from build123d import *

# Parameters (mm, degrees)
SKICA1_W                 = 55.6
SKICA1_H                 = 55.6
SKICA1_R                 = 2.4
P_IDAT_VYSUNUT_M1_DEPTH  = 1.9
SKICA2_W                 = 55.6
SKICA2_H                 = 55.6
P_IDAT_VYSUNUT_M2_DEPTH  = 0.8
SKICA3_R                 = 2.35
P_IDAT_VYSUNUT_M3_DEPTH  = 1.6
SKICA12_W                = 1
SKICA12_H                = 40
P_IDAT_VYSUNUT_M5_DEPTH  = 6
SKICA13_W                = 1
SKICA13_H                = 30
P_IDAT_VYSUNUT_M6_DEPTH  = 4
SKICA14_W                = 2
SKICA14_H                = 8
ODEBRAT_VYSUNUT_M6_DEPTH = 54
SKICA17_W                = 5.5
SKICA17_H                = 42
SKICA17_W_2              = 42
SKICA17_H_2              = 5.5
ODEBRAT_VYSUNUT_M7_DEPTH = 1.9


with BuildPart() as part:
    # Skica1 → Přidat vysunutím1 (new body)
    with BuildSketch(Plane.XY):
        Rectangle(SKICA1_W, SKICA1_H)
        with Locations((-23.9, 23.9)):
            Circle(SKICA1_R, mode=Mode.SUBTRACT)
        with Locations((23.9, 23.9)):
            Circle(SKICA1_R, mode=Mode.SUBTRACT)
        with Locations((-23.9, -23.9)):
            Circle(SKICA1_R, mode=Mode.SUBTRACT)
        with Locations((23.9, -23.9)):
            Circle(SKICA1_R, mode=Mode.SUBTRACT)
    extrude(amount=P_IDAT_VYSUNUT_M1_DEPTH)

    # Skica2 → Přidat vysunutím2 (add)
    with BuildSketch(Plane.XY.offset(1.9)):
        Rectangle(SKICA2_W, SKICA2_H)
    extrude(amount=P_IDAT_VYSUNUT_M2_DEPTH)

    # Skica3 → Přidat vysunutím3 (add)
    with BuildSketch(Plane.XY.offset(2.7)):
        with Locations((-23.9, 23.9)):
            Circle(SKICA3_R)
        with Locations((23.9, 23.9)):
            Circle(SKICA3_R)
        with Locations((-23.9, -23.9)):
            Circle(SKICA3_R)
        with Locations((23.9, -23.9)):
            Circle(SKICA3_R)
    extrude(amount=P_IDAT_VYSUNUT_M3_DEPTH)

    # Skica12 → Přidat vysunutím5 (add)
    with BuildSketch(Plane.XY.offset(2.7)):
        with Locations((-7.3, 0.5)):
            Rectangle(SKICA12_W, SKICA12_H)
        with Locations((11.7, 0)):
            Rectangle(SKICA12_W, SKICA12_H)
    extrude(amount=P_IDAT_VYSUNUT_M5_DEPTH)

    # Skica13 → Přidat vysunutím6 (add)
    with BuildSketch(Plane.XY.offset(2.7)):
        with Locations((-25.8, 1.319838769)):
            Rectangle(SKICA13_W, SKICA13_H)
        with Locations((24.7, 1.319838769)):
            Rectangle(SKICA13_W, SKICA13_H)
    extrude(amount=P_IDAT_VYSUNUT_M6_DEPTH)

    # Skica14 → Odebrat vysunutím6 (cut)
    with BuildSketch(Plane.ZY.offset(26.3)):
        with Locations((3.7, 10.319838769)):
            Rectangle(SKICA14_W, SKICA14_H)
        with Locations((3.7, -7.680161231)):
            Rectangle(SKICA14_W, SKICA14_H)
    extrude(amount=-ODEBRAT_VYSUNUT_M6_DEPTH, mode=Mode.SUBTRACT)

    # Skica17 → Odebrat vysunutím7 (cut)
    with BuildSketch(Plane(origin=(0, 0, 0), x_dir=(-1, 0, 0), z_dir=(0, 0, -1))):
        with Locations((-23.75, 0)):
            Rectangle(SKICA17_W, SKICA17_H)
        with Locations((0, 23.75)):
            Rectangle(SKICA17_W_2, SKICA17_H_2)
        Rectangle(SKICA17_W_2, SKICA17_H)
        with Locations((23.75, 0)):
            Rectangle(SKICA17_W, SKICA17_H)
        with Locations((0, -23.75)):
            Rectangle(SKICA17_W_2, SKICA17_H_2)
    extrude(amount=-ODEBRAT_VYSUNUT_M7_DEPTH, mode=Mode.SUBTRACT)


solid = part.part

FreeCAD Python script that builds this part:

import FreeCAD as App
import Part
import Sketcher

V = App.Vector
Q = App.Units.Quantity

doc = App.newDocument("Part")
body = doc.addObject("PartDesign::Body", "Body")

sketch1 = doc.addObject("Sketcher::SketchObject", "Sketch")
body.addObject(sketch1)
sketch1.AttachmentSupport = (doc.XY_Plane, [""])
sketch1.MapMode = "FlatFace"
sketch1.addGeometry(Part.LineSegment(V(-27.8, 27.8, 0), V(-27.8, -27.8, 0)), False)
sketch1.addGeometry(Part.LineSegment(V(-27.8, -27.8, 0), V(27.8, -27.8, 0)), False)
sketch1.addGeometry(Part.LineSegment(V(27.8, -27.8, 0), V(27.8, 27.8, 0)), False)
sketch1.addGeometry(Part.LineSegment(V(27.8, 27.8, 0), V(-27.8, 27.8, 0)), False)
sketch1.addGeometry(Part.Circle(V(-23.9, -23.9, 0), V(0, 0, 1), 2.4), False)
sketch1.addGeometry(Part.Circle(V(23.9, -23.9, 0), V(0, 0, 1), 2.4), False)
sketch1.addGeometry(Part.Circle(V(-23.9, 23.9, 0), V(0, 0, 1), 2.4), False)
sketch1.addGeometry(Part.Circle(V(23.9, 23.9, 0), V(0, 0, 1), 2.4), False)
sketch1.addConstraint(Sketcher.Constraint("Coincident", 0, 2, 1, 1))
sketch1.addConstraint(Sketcher.Constraint("Coincident", 1, 2, 2, 1))
sketch1.addConstraint(Sketcher.Constraint("Coincident", 2, 2, 3, 1))
sketch1.addConstraint(Sketcher.Constraint("Coincident", 3, 2, 0, 1))
sketch1.addConstraint(Sketcher.Constraint("Vertical", 0))
sketch1.addConstraint(Sketcher.Constraint("Horizontal", 1))
sketch1.addConstraint(Sketcher.Constraint("Vertical", 2))
sketch1.addConstraint(Sketcher.Constraint("Horizontal", 3))
sketch1.addConstraint(Sketcher.Constraint("Equal", 4, 5))
sketch1.addConstraint(Sketcher.Constraint("Equal", 5, 6))
sketch1.addConstraint(Sketcher.Constraint("Equal", 6, 7))
sketch1.addConstraint(Sketcher.Constraint("Symmetric", 5, 3, 6, 3, -1, 1))
sketch1.addConstraint(Sketcher.Constraint("Symmetric", 4, 3, 7, 3, -1, 1))
sketch1.addConstraint(Sketcher.Constraint("Symmetric", 0, 2, 2, 2, -1, 1))
sketch1.addConstraint(Sketcher.Constraint("Symmetric", 4, 3, 5, 3, -2))
sketch1.addConstraint(Sketcher.Constraint("Equal", 3, 0))
sketch1.addConstraint(Sketcher.Constraint("Diameter", 4, Q("4.8 mm")))
sketch1.addConstraint(Sketcher.Constraint("DistanceX", 1, 1, 1, 2, Q("55.6 mm")))
sketch1.addConstraint(Sketcher.Constraint("DistanceX", 4, 3, -1, 1, Q("23.9 mm")))
sketch1.addConstraint(Sketcher.Constraint("DistanceY", 4, 3, -1, 1, Q("23.9 mm")))
pad1 = doc.addObject("PartDesign::Pad", "Pad")
body.addObject(pad1)
pad1.Profile = sketch1
pad1.Length = 1.9

sketch2 = doc.addObject("Sketcher::SketchObject", "Sketch001")
body.addObject(sketch2)
sketch2.AttachmentSupport = (doc.XY_Plane, [""])
sketch2.MapMode = "FlatFace"
sketch2.AttachmentOffset = App.Placement(V(0, 0, 1.9), App.Rotation())
sketch2.addGeometry(Part.LineSegment(V(-27.8, 27.8, 0), V(-27.8, -27.8, 0)), False)
sketch2.addGeometry(Part.LineSegment(V(-27.8, -27.8, 0), V(27.8, -27.8, 0)), False)
sketch2.addGeometry(Part.LineSegment(V(27.8, -27.8, 0), V(27.8, 27.8, 0)), False)
sketch2.addGeometry(Part.LineSegment(V(27.8, 27.8, 0), V(-27.8, 27.8, 0)), False)
sketch2.addConstraint(Sketcher.Constraint("Coincident", 0, 2, 1, 1))
sketch2.addConstraint(Sketcher.Constraint("Coincident", 1, 2, 2, 1))
sketch2.addConstraint(Sketcher.Constraint("Coincident", 2, 2, 3, 1))
sketch2.addConstraint(Sketcher.Constraint("Coincident", 3, 2, 0, 1))
sketch2.addConstraint(Sketcher.Constraint("Vertical", 0))
sketch2.addConstraint(Sketcher.Constraint("Horizontal", 1))
sketch2.addConstraint(Sketcher.Constraint("Vertical", 2))
sketch2.addConstraint(Sketcher.Constraint("Horizontal", 3))
sketch2.addConstraint(Sketcher.Constraint("Symmetric", 0, 2, 2, 2, -1, 1))
sketch2.addConstraint(Sketcher.Constraint("Equal", 3, 0))
sketch2.addConstraint(Sketcher.Constraint("DistanceX", 1, 1, 1, 2, Q("55.6 mm")))
pad2 = doc.addObject("PartDesign::Pad", "Pad001")
body.addObject(pad2)
pad2.Profile = sketch2
pad2.Length = 0.8

sketch3 = doc.addObject("Sketcher::SketchObject", "Sketch002")
body.addObject(sketch3)
sketch3.AttachmentSupport = (doc.XY_Plane, [""])
sketch3.MapMode = "FlatFace"
sketch3.AttachmentOffset = App.Placement(V(0, 0, 2.7), App.Rotation())
sketch3.addGeometry(Part.Circle(V(-23.9, 23.9, 0), V(0, 0, 1), 2.35), False)
sketch3.addGeometry(Part.Circle(V(23.9, 23.9, 0), V(0, 0, 1), 2.35), False)
sketch3.addGeometry(Part.Circle(V(-23.9, -23.9, 0), V(0, 0, 1), 2.35), False)
sketch3.addGeometry(Part.Circle(V(23.9, -23.9, 0), V(0, 0, 1), 2.35), False)
sketch3.addConstraint(Sketcher.Constraint("Equal", 0, 1))
sketch3.addConstraint(Sketcher.Constraint("Equal", 1, 2))
sketch3.addConstraint(Sketcher.Constraint("Equal", 2, 3))
sketch3.addConstraint(Sketcher.Constraint("Symmetric", 1, 3, 2, 3, -1, 1))
sketch3.addConstraint(Sketcher.Constraint("Symmetric", 0, 3, 3, 3, -1, 1))
sketch3.addConstraint(Sketcher.Constraint("Symmetric", 0, 3, 1, 3, -2))
sketch3.addConstraint(Sketcher.Constraint("Diameter", 0, Q("4.7 mm")))
sketch3.addConstraint(Sketcher.Constraint("DistanceX", 0, 3, -1, 1, Q("23.9 mm")))
sketch3.addConstraint(Sketcher.Constraint("DistanceY", -1, 1, 0, 3, Q("23.9 mm")))
pad3 = doc.addObject("PartDesign::Pad", "Pad002")
body.addObject(pad3)
pad3.Profile = sketch3
pad3.Length = 1.6

sketch4 = doc.addObject("Sketcher::SketchObject", "Sketch003")
body.addObject(sketch4)
sketch4.AttachmentSupport = (doc.XY_Plane, [""])
sketch4.MapMode = "FlatFace"
sketch4.AttachmentOffset = App.Placement(V(0, 0, 2.7), App.Rotation())
sketch4.addGeometry(Part.LineSegment(V(-7.8, 20.5, 0), V(-7.8, -19.5, 0)), False)
sketch4.addGeometry(Part.LineSegment(V(-7.8, -19.5, 0), V(-6.8, -19.5, 0)), False)
sketch4.addGeometry(Part.LineSegment(V(-6.8, -19.5, 0), V(-6.8, 20.5, 0)), False)
sketch4.addGeometry(Part.LineSegment(V(-6.8, 20.5, 0), V(-7.8, 20.5, 0)), False)
sketch4.addGeometry(Part.LineSegment(V(11.2, 20, 0), V(11.2, -20, 0)), False)
sketch4.addGeometry(Part.LineSegment(V(11.2, -20, 0), V(12.2, -20, 0)), False)
sketch4.addGeometry(Part.LineSegment(V(12.2, -20, 0), V(12.2, 20, 0)), False)
sketch4.addGeometry(Part.LineSegment(V(12.2, 20, 0), V(11.2, 20, 0)), False)
sketch4.addConstraint(Sketcher.Constraint("Coincident", 0, 2, 1, 1))
sketch4.addConstraint(Sketcher.Constraint("Coincident", 1, 2, 2, 1))
sketch4.addConstraint(Sketcher.Constraint("Coincident", 2, 2, 3, 1))
sketch4.addConstraint(Sketcher.Constraint("Coincident", 3, 2, 0, 1))
sketch4.addConstraint(Sketcher.Constraint("Coincident", 4, 2, 5, 1))
sketch4.addConstraint(Sketcher.Constraint("Coincident", 5, 2, 6, 1))
sketch4.addConstraint(Sketcher.Constraint("Coincident", 6, 2, 7, 1))
sketch4.addConstraint(Sketcher.Constraint("Coincident", 7, 2, 4, 1))
sketch4.addConstraint(Sketcher.Constraint("Vertical", 0))
sketch4.addConstraint(Sketcher.Constraint("Horizontal", 1))
sketch4.addConstraint(Sketcher.Constraint("Vertical", 2))
sketch4.addConstraint(Sketcher.Constraint("Horizontal", 3))
sketch4.addConstraint(Sketcher.Constraint("Vertical", 4))
sketch4.addConstraint(Sketcher.Constraint("Horizontal", 5))
sketch4.addConstraint(Sketcher.Constraint("Vertical", 6))
sketch4.addConstraint(Sketcher.Constraint("Horizontal", 7))
sketch4.addConstraint(Sketcher.Constraint("Equal", 3, 5))
sketch4.addConstraint(Sketcher.Constraint("Equal", 2, 4))
sketch4.addConstraint(Sketcher.Constraint("DistanceX", 1, 1, 1, 2, Q("1 mm")))
sketch4.addConstraint(Sketcher.Constraint("DistanceY", 0, 2, 0, 1, Q("40 mm")))
sketch4.addConstraint(Sketcher.Constraint("DistanceY", 4, 2, -1, 1, Q("20 mm")))
sketch4.addConstraint(Sketcher.Constraint("DistanceX", 1, 2, 4, 2, Q("18 mm")))
sketch4.addConstraint(Sketcher.Constraint("DistanceX", 0, 2, -1, 1, Q("7.8 mm")))
sketch4.addConstraint(Sketcher.Constraint("DistanceY", 0, 2, -1, 1, Q("19.5 mm")))
pad4 = doc.addObject("PartDesign::Pad", "Pad003")
body.addObject(pad4)
pad4.Profile = sketch4
pad4.Length = 6

sketch5 = doc.addObject("Sketcher::SketchObject", "Sketch004")
body.addObject(sketch5)
sketch5.AttachmentSupport = (doc.XY_Plane, [""])
sketch5.MapMode = "FlatFace"
sketch5.AttachmentOffset = App.Placement(V(0, 0, 2.7), App.Rotation())
sketch5.addGeometry(Part.LineSegment(V(-26.3, 16.319839, 0), V(-26.3, -13.680161, 0)), False)
sketch5.addGeometry(Part.LineSegment(V(-26.3, -13.680161, 0), V(-25.3, -13.680161, 0)), False)
sketch5.addGeometry(Part.LineSegment(V(-25.3, -13.680161, 0), V(-25.3, 16.319839, 0)), False)
sketch5.addGeometry(Part.LineSegment(V(-25.3, 16.319839, 0), V(-26.3, 16.319839, 0)), False)
sketch5.addGeometry(Part.LineSegment(V(24.2, 16.319839, 0), V(24.2, -13.680161, 0)), False)
sketch5.addGeometry(Part.LineSegment(V(24.2, -13.680161, 0), V(25.2, -13.680161, 0)), False)
sketch5.addGeometry(Part.LineSegment(V(25.2, -13.680161, 0), V(25.2, 16.319839, 0)), False)
sketch5.addGeometry(Part.LineSegment(V(25.2, 16.319839, 0), V(24.2, 16.319839, 0)), False)
sketch5.addConstraint(Sketcher.Constraint("Coincident", 0, 2, 1, 1))
sketch5.addConstraint(Sketcher.Constraint("Coincident", 1, 2, 2, 1))
sketch5.addConstraint(Sketcher.Constraint("Coincident", 2, 2, 3, 1))
sketch5.addConstraint(Sketcher.Constraint("Coincident", 3, 2, 0, 1))
sketch5.addConstraint(Sketcher.Constraint("Coincident", 4, 2, 5, 1))
sketch5.addConstraint(Sketcher.Constraint("Coincident", 5, 2, 6, 1))
sketch5.addConstraint(Sketcher.Constraint("Coincident", 6, 2, 7, 1))
sketch5.addConstraint(Sketcher.Constraint("Coincident", 7, 2, 4, 1))
sketch5.addConstraint(Sketcher.Constraint("Vertical", 0))
sketch5.addConstraint(Sketcher.Constraint("Horizontal", 1))
sketch5.addConstraint(Sketcher.Constraint("Vertical", 2))
sketch5.addConstraint(Sketcher.Constraint("Horizontal", 3))
sketch5.addConstraint(Sketcher.Constraint("Vertical", 4))
sketch5.addConstraint(Sketcher.Constraint("Horizontal", 5))
sketch5.addConstraint(Sketcher.Constraint("Vertical", 6))
sketch5.addConstraint(Sketcher.Constraint("Horizontal", 7))
sketch5.addConstraint(Sketcher.Constraint("Horizontal", 1, 2, 4, 2))
sketch5.addConstraint(Sketcher.Constraint("Horizontal", 3, 2, 6, 2))
sketch5.addConstraint(Sketcher.Constraint("Equal", 3, 5))
sketch5.addConstraint(Sketcher.Constraint("DistanceX", 1, 1, 1, 2, Q("1 mm")))
sketch5.addConstraint(Sketcher.Constraint("DistanceY", 0, 2, 0, 1, Q("30 mm")))
sketch5.addConstraint(Sketcher.Constraint("DistanceX", 0, 2, -1, 1, Q("26.3 mm")))
sketch5.addConstraint(Sketcher.Constraint("DistanceX", -1, 1, 4, 2, Q("24.2 mm")))
sketch5.addConstraint(Sketcher.Constraint("DistanceY", 0, 2, -1, 1, Q("13.680161 mm")))
pad5 = doc.addObject("PartDesign::Pad", "Pad004")
body.addObject(pad5)
pad5.Profile = sketch5
pad5.Length = 4

sketch6 = doc.addObject("Sketcher::SketchObject", "Sketch005")
body.addObject(sketch6)
sketch6.AttachmentSupport = (doc.YZ_Plane, [""])
sketch6.MapMode = "FlatFace"
sketch6.AttachmentOffset = App.Placement(V(0, 0, -26.3), App.Rotation())
sketch6.addGeometry(Part.LineSegment(V(14.319839, 2.7, 0), V(6.319839, 2.7, 0)), False)
sketch6.addGeometry(Part.LineSegment(V(6.319839, 2.7, 0), V(6.319839, 4.7, 0)), False)
sketch6.addGeometry(Part.LineSegment(V(6.319839, 4.7, 0), V(14.319839, 4.7, 0)), False)
sketch6.addGeometry(Part.LineSegment(V(14.319839, 4.7, 0), V(14.319839, 2.7, 0)), False)
sketch6.addGeometry(Part.LineSegment(V(-3.680161, 2.7, 0), V(-11.680161, 2.7, 0)), False)
sketch6.addGeometry(Part.LineSegment(V(-11.680161, 2.7, 0), V(-11.680161, 4.7, 0)), False)
sketch6.addGeometry(Part.LineSegment(V(-11.680161, 4.7, 0), V(-3.680161, 4.7, 0)), False)
sketch6.addGeometry(Part.LineSegment(V(-3.680161, 4.7, 0), V(-3.680161, 2.7, 0)), False)
sketch6.addConstraint(Sketcher.Constraint("Coincident", 0, 2, 1, 1))
sketch6.addConstraint(Sketcher.Constraint("Coincident", 1, 2, 2, 1))
sketch6.addConstraint(Sketcher.Constraint("Coincident", 2, 2, 3, 1))
sketch6.addConstraint(Sketcher.Constraint("Coincident", 3, 2, 0, 1))
sketch6.addConstraint(Sketcher.Constraint("Coincident", 4, 2, 5, 1))
sketch6.addConstraint(Sketcher.Constraint("Coincident", 5, 2, 6, 1))
sketch6.addConstraint(Sketcher.Constraint("Coincident", 6, 2, 7, 1))
sketch6.addConstraint(Sketcher.Constraint("Coincident", 7, 2, 4, 1))
sketch6.addConstraint(Sketcher.Constraint("Horizontal", 0))
sketch6.addConstraint(Sketcher.Constraint("Vertical", 1))
sketch6.addConstraint(Sketcher.Constraint("Horizontal", 2))
sketch6.addConstraint(Sketcher.Constraint("Vertical", 3))
sketch6.addConstraint(Sketcher.Constraint("Horizontal", 4))
sketch6.addConstraint(Sketcher.Constraint("Vertical", 5))
sketch6.addConstraint(Sketcher.Constraint("Horizontal", 6))
sketch6.addConstraint(Sketcher.Constraint("Vertical", 7))
sketch6.addConstraint(Sketcher.Constraint("Horizontal", 3, 2, 4, 2))
sketch6.addConstraint(Sketcher.Constraint("Horizontal", 2, 2, 5, 2))
sketch6.addConstraint(Sketcher.Constraint("Equal", 2, 4))
sketch6.addConstraint(Sketcher.Constraint("DistanceX", 0, 2, 0, 1, Q("8 mm")))
sketch6.addConstraint(Sketcher.Constraint("DistanceY", 1, 1, 1, 2, Q("2 mm")))
sketch6.addConstraint(Sketcher.Constraint("DistanceX", 4, 2, 0, 2, Q("18 mm")))
sketch6.addConstraint(Sketcher.Constraint("DistanceY", -1, 1, 0, 2, Q("2.7 mm")))
sketch6.addConstraint(Sketcher.Constraint("DistanceX", -1, 1, 0, 2, Q("6.319839 mm")))
pocket1 = doc.addObject("PartDesign::Pocket", "Pocket")
body.addObject(pocket1)
pocket1.Profile = sketch6
pocket1.Length = 54
pocket1.Reversed = True

sketch7 = doc.addObject("Sketcher::SketchObject", "Sketch006")
body.addObject(sketch7)
sketch7.AttachmentSupport = (doc.XY_Plane, [""])
sketch7.MapMode = "FlatFace"
sketch7.addGeometry(Part.LineSegment(V(26.5, 21, 0), V(26.5, -21, 0)), False)
sketch7.addGeometry(Part.LineSegment(V(26.5, -21, 0), V(21, -21, 0)), False)
sketch7.addGeometry(Part.LineSegment(V(21, -21, 0), V(21, -26.5, 0)), False)
sketch7.addGeometry(Part.LineSegment(V(21, -26.5, 0), V(-21, -26.5, 0)), False)
sketch7.addGeometry(Part.LineSegment(V(-21, -26.5, 0), V(-21, -21, 0)), False)
sketch7.addGeometry(Part.LineSegment(V(-21, -21, 0), V(-26.5, -21, 0)), False)
sketch7.addGeometry(Part.LineSegment(V(-26.5, -21, 0), V(-26.5, 21, 0)), False)
sketch7.addGeometry(Part.LineSegment(V(-26.5, 21, 0), V(-21, 21, 0)), False)
sketch7.addGeometry(Part.LineSegment(V(-21, 21, 0), V(-21, 26.5, 0)), False)
sketch7.addGeometry(Part.LineSegment(V(-21, 26.5, 0), V(21, 26.5, 0)), False)
sketch7.addGeometry(Part.LineSegment(V(21, 26.5, 0), V(21, 21, 0)), False)
sketch7.addGeometry(Part.LineSegment(V(21, 21, 0), V(26.5, 21, 0)), False)
sketch7.addConstraint(Sketcher.Constraint("Coincident", 0, 2, 1, 1))
sketch7.addConstraint(Sketcher.Constraint("Coincident", 1, 2, 2, 1))
sketch7.addConstraint(Sketcher.Constraint("Coincident", 2, 2, 3, 1))
sketch7.addConstraint(Sketcher.Constraint("Coincident", 3, 2, 4, 1))
sketch7.addConstraint(Sketcher.Constraint("Coincident", 4, 2, 5, 1))
sketch7.addConstraint(Sketcher.Constraint("Coincident", 5, 2, 6, 1))
sketch7.addConstraint(Sketcher.Constraint("Coincident", 6, 2, 7, 1))
sketch7.addConstraint(Sketcher.Constraint("Coincident", 7, 2, 8, 1))
sketch7.addConstraint(Sketcher.Constraint("Coincident", 8, 2, 9, 1))
sketch7.addConstraint(Sketcher.Constraint("Coincident", 9, 2, 10, 1))
sketch7.addConstraint(Sketcher.Constraint("Coincident", 10, 2, 11, 1))
sketch7.addConstraint(Sketcher.Constraint("Coincident", 11, 2, 0, 1))
sketch7.addConstraint(Sketcher.Constraint("Vertical", 0))
sketch7.addConstraint(Sketcher.Constraint("Horizontal", 1))
sketch7.addConstraint(Sketcher.Constraint("Vertical", 2))
sketch7.addConstraint(Sketcher.Constraint("Horizontal", 3))
sketch7.addConstraint(Sketcher.Constraint("Vertical", 4))
sketch7.addConstraint(Sketcher.Constraint("Horizontal", 5))
sketch7.addConstraint(Sketcher.Constraint("Vertical", 6))
sketch7.addConstraint(Sketcher.Constraint("Horizontal", 7))
sketch7.addConstraint(Sketcher.Constraint("Vertical", 8))
sketch7.addConstraint(Sketcher.Constraint("Horizontal", 9))
sketch7.addConstraint(Sketcher.Constraint("Vertical", 10))
sketch7.addConstraint(Sketcher.Constraint("Horizontal", 11))
sketch7.addConstraint(Sketcher.Constraint("Symmetric", 0, 2, 6, 2, -1, 1))
sketch7.addConstraint(Sketcher.Constraint("Symmetric", 2, 2, 8, 2, -1, 1))
sketch7.addConstraint(Sketcher.Constraint("Symmetric", 4, 2, 10, 2, -1, 1))
sketch7.addConstraint(Sketcher.Constraint("Symmetric", 1, 2, 4, 2, -2))
sketch7.addConstraint(Sketcher.Constraint("Equal", 9, 0))
sketch7.addConstraint(Sketcher.Constraint("Equal", 11, 2))
sketch7.addConstraint(Sketcher.Constraint("DistanceX", 3, 2, 3, 1, Q("42 mm")))
sketch7.addConstraint(Sketcher.Constraint("DistanceX", 1, 2, 1, 1, Q("5.5 mm")))
pocket2 = doc.addObject("PartDesign::Pocket", "Pocket001")
body.addObject(pocket2)
pocket2.Profile = sketch7
pocket2.Length = 1.9
pocket2.Reversed = True

doc.recompute()
